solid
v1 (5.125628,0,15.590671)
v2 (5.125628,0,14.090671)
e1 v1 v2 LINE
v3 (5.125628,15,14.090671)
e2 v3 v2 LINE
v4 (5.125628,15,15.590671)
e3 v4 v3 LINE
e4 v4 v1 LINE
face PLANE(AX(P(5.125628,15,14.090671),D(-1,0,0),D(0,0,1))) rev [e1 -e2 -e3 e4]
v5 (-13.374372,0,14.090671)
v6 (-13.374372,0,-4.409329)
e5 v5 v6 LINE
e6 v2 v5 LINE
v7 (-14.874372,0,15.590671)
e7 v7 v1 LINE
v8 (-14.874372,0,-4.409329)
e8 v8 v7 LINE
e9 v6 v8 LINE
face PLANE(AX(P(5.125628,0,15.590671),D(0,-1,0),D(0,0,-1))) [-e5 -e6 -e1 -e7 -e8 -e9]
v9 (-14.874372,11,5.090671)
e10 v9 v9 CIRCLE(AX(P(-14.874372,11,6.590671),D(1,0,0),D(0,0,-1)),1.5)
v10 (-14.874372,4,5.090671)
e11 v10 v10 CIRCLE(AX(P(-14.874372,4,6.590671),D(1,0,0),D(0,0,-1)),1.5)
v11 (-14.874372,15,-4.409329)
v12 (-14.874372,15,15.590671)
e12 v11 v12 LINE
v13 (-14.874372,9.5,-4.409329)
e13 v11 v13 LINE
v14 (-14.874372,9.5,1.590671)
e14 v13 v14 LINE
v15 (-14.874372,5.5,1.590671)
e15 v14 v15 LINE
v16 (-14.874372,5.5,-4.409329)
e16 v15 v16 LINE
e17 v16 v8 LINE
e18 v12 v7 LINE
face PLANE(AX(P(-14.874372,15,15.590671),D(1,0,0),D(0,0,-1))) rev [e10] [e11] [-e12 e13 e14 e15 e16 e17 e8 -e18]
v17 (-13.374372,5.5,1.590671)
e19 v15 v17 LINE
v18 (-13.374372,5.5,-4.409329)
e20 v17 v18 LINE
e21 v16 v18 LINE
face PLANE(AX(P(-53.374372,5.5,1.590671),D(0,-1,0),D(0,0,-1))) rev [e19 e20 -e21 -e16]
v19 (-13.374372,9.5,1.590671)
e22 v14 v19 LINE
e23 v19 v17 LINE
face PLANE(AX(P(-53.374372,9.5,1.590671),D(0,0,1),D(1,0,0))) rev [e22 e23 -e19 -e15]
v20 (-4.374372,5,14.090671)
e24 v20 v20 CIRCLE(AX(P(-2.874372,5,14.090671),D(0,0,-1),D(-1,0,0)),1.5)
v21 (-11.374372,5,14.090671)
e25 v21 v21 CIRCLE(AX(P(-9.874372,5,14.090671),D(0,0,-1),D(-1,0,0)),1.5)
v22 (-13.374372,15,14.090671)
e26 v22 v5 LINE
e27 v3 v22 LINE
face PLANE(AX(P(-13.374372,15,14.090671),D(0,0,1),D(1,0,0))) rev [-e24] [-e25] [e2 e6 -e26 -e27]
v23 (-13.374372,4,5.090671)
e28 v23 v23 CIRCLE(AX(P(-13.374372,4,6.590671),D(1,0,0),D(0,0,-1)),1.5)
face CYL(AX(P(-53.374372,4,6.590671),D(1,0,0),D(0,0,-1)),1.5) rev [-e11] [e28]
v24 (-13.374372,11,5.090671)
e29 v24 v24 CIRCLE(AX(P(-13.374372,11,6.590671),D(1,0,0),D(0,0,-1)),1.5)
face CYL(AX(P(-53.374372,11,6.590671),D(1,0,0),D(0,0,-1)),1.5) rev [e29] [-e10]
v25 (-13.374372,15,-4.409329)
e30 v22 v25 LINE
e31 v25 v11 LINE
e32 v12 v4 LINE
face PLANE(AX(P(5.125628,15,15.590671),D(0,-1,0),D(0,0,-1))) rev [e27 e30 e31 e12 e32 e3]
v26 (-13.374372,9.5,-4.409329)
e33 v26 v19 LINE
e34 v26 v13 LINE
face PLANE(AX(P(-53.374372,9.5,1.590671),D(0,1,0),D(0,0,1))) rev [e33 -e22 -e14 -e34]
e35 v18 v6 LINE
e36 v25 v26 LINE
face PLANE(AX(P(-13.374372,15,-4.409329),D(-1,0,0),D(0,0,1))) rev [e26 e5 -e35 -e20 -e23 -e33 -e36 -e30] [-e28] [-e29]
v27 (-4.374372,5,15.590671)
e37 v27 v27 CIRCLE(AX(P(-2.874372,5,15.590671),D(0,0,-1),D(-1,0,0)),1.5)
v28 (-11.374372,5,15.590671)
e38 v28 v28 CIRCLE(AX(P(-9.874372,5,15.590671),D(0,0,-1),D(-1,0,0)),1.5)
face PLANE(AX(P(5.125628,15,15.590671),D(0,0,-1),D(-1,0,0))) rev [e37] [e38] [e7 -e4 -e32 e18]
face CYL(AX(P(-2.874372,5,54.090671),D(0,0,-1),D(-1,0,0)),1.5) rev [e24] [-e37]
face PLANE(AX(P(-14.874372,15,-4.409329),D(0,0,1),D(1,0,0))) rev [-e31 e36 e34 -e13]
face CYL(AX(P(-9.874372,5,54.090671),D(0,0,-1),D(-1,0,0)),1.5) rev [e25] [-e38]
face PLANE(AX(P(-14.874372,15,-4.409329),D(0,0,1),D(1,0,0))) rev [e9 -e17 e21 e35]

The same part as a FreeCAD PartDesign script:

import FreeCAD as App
import Part
import Sketcher

V = App.Vector

doc = App.newDocument("Part")
body = doc.addObject("PartDesign::Body", "Body")

# Sketch on XZ plane
sketch1 = body.newObject("Sketcher::SketchObject", "Sketch")
sketch1.AttachmentSupport = (doc.getObject("XZ_Plane"), [""])
sketch1.MapMode = "FlatFace"
sketch1.addGeometry([
    Part.LineSegment(V(-14.9, 15.6, 0), V(5.1, 15.6, 0)),  # 0
    Part.LineSegment(V(5.1, 15.6, 0), V(5.1, 14.1, 0)),  # 1
    Part.LineSegment(V(5.1, 14.1, 0), V(-13.4, 14.1, 0)),  # 2
    Part.LineSegment(V(-13.4, 14.1, 0), V(-13.4, -4.4, 0)),  # 3
    Part.LineSegment(V(-13.4, -4.4, 0), V(-14.9, -4.4, 0)),  # 4
    Part.LineSegment(V(-14.9, -4.4, 0), V(-14.9, 15.6, 0)),  # 5
], False)
sketch1.addConstraint([
    Sketcher.Constraint("Coincident", 0, 2, 1, 1),
    Sketcher.Constraint("Coincident", 1, 2, 2, 1),
    Sketcher.Constraint("Coincident", 2, 2, 3, 1),
    Sketcher.Constraint("Coincident", 3, 2, 4, 1),
    Sketcher.Constraint("Coincident", 4, 2, 5, 1),
    Sketcher.Constraint("Coincident", 5, 2, 0, 1),
    Sketcher.Constraint("Horizontal", 0),
    Sketcher.Constraint("Vertical", 1),
    Sketcher.Constraint("Horizontal", 2),
    Sketcher.Constraint("Vertical", 3),
    Sketcher.Constraint("Horizontal", 4),
    Sketcher.Constraint("Vertical", 5),
    Sketcher.Constraint("Equal", 4, 1),
    Sketcher.Constraint("Equal", 2, 3),
    Sketcher.Constraint("DistanceX", 0, 1, 0, 2, 20.0),
    Sketcher.Constraint("DistanceX", 2, 2, 2, 1, 18.5),
    Sketcher.Constraint("DistanceX", -1, 1, 0, 2, 5.125628),
    Sketcher.Constraint("DistanceY", -1, 1, 0, 2, 15.590671),
])
pad1 = body.newObject("PartDesign::Pad", "Pad")
pad1.Profile = sketch1
pad1.Length = 15
pad1.Reversed = True

# Sketch on XY plane
sketch2 = body.newObject("Sketcher::SketchObject", "Sketch001")
sketch2.AttachmentSupport = (doc.getObject("XY_Plane"), [""])
sketch2.MapMode = "FlatFace"
sketch2.AttachmentOffset = App.Placement(V(0, 0, 14.090671), App.Rotation())
sketch2.addGeometry([
    Part.Circle(V(-2.9, 5, 0), V(0, 0, 1), 1.5),
    Part.Circle(V(-9.9, 5, 0), V(0, 0, 1), 1.5),
], False)
sketch2.addConstraint([
    Sketcher.Constraint("Equal", 0, 1),
    Sketcher.Constraint("Horizontal", 0, 3, 1, 3),
    Sketcher.Constraint("Diameter", 0, 3.0),
    Sketcher.Constraint("DistanceY", -1, 1, 0, 3, 5.0),
    Sketcher.Constraint("DistanceX", 1, 3, 0, 3, 7.0),
    Sketcher.Constraint("DistanceX", 0, 3, -1, 1, 2.874372),
])
pocket1 = body.newObject("PartDesign::Pocket", "Pocket")
pocket1.Profile = sketch2
pocket1.Length = 40
pocket1.Reversed = True

# Sketch on YZ plane
sketch3 = body.newObject("Sketcher::SketchObject", "Sketch002")
sketch3.AttachmentSupport = (doc.getObject("YZ_Plane"), [""])
sketch3.MapMode = "FlatFace"
sketch3.AttachmentOffset = App.Placement(V(0, 0, -13.374372), App.Rotation())
sketch3.addGeometry([
    Part.Circle(V(4, 6.6, 0), V(0, 0, 1), 1.5),  # 0
    Part.Circle(V(11, 6.6, 0), V(0, 0, 1), 1.5),  # 1
    Part.LineSegment(V(9.5, 1.6, 0), V(5.5, 1.6, 0)),  # 2
    Part.LineSegment(V(5.5, 1.6, 0), V(5.5, -5.4, 0)),  # 3
    Part.LineSegment(V(5.5, -5.4, 0), V(9.5, -5.4, 0)),  # 4
    Part.LineSegment(V(9.5, -5.4, 0), V(9.5, 1.6, 0)),  # 5
], False)
sketch3.addConstraint([
    Sketcher.Constraint("Coincident", 2, 2, 3, 1),
    Sketcher.Constraint("Coincident", 3, 2, 4, 1),
    Sketcher.Constraint("Coincident", 4, 2, 5, 1),
    Sketcher.Constraint("Coincident", 5, 2, 2, 1),
    Sketcher.Constraint("Horizontal", 2),
    Sketcher.Constraint("Vertical", 3),
    Sketcher.Constraint("Horizontal", 4),
    Sketcher.Constraint("Vertical", 5),
    Sketcher.Constraint("Equal", 0, 1),
    Sketcher.Constraint("Horizontal", 0, 3, 1, 3),
    Sketcher.Constraint("Diameter", 0, 3.0),
    Sketcher.Constraint("DistanceX", 2, 2, 2, 1, 4.0),
    Sketcher.Constraint("DistanceY", 3, 2, 3, 1, 7.0),
    Sketcher.Constraint("DistanceX", -1, 1, 0, 3, 4.0),
    Sketcher.Constraint("DistanceX", -1, 1, 1, 3, 11.0),
    Sketcher.Constraint("DistanceY", 2, 2, 0, 3, 5.0),
    Sketcher.Constraint("DistanceX", -1, 1, 2, 2, 5.5),
    Sketcher.Constraint("DistanceY", -1, 1, 0, 3, 6.590671),
])
pocket2 = body.newObject("PartDesign::Pocket", "Pocket001")
pocket2.Profile = sketch3
pocket2.Length = 40

doc.recompute()
